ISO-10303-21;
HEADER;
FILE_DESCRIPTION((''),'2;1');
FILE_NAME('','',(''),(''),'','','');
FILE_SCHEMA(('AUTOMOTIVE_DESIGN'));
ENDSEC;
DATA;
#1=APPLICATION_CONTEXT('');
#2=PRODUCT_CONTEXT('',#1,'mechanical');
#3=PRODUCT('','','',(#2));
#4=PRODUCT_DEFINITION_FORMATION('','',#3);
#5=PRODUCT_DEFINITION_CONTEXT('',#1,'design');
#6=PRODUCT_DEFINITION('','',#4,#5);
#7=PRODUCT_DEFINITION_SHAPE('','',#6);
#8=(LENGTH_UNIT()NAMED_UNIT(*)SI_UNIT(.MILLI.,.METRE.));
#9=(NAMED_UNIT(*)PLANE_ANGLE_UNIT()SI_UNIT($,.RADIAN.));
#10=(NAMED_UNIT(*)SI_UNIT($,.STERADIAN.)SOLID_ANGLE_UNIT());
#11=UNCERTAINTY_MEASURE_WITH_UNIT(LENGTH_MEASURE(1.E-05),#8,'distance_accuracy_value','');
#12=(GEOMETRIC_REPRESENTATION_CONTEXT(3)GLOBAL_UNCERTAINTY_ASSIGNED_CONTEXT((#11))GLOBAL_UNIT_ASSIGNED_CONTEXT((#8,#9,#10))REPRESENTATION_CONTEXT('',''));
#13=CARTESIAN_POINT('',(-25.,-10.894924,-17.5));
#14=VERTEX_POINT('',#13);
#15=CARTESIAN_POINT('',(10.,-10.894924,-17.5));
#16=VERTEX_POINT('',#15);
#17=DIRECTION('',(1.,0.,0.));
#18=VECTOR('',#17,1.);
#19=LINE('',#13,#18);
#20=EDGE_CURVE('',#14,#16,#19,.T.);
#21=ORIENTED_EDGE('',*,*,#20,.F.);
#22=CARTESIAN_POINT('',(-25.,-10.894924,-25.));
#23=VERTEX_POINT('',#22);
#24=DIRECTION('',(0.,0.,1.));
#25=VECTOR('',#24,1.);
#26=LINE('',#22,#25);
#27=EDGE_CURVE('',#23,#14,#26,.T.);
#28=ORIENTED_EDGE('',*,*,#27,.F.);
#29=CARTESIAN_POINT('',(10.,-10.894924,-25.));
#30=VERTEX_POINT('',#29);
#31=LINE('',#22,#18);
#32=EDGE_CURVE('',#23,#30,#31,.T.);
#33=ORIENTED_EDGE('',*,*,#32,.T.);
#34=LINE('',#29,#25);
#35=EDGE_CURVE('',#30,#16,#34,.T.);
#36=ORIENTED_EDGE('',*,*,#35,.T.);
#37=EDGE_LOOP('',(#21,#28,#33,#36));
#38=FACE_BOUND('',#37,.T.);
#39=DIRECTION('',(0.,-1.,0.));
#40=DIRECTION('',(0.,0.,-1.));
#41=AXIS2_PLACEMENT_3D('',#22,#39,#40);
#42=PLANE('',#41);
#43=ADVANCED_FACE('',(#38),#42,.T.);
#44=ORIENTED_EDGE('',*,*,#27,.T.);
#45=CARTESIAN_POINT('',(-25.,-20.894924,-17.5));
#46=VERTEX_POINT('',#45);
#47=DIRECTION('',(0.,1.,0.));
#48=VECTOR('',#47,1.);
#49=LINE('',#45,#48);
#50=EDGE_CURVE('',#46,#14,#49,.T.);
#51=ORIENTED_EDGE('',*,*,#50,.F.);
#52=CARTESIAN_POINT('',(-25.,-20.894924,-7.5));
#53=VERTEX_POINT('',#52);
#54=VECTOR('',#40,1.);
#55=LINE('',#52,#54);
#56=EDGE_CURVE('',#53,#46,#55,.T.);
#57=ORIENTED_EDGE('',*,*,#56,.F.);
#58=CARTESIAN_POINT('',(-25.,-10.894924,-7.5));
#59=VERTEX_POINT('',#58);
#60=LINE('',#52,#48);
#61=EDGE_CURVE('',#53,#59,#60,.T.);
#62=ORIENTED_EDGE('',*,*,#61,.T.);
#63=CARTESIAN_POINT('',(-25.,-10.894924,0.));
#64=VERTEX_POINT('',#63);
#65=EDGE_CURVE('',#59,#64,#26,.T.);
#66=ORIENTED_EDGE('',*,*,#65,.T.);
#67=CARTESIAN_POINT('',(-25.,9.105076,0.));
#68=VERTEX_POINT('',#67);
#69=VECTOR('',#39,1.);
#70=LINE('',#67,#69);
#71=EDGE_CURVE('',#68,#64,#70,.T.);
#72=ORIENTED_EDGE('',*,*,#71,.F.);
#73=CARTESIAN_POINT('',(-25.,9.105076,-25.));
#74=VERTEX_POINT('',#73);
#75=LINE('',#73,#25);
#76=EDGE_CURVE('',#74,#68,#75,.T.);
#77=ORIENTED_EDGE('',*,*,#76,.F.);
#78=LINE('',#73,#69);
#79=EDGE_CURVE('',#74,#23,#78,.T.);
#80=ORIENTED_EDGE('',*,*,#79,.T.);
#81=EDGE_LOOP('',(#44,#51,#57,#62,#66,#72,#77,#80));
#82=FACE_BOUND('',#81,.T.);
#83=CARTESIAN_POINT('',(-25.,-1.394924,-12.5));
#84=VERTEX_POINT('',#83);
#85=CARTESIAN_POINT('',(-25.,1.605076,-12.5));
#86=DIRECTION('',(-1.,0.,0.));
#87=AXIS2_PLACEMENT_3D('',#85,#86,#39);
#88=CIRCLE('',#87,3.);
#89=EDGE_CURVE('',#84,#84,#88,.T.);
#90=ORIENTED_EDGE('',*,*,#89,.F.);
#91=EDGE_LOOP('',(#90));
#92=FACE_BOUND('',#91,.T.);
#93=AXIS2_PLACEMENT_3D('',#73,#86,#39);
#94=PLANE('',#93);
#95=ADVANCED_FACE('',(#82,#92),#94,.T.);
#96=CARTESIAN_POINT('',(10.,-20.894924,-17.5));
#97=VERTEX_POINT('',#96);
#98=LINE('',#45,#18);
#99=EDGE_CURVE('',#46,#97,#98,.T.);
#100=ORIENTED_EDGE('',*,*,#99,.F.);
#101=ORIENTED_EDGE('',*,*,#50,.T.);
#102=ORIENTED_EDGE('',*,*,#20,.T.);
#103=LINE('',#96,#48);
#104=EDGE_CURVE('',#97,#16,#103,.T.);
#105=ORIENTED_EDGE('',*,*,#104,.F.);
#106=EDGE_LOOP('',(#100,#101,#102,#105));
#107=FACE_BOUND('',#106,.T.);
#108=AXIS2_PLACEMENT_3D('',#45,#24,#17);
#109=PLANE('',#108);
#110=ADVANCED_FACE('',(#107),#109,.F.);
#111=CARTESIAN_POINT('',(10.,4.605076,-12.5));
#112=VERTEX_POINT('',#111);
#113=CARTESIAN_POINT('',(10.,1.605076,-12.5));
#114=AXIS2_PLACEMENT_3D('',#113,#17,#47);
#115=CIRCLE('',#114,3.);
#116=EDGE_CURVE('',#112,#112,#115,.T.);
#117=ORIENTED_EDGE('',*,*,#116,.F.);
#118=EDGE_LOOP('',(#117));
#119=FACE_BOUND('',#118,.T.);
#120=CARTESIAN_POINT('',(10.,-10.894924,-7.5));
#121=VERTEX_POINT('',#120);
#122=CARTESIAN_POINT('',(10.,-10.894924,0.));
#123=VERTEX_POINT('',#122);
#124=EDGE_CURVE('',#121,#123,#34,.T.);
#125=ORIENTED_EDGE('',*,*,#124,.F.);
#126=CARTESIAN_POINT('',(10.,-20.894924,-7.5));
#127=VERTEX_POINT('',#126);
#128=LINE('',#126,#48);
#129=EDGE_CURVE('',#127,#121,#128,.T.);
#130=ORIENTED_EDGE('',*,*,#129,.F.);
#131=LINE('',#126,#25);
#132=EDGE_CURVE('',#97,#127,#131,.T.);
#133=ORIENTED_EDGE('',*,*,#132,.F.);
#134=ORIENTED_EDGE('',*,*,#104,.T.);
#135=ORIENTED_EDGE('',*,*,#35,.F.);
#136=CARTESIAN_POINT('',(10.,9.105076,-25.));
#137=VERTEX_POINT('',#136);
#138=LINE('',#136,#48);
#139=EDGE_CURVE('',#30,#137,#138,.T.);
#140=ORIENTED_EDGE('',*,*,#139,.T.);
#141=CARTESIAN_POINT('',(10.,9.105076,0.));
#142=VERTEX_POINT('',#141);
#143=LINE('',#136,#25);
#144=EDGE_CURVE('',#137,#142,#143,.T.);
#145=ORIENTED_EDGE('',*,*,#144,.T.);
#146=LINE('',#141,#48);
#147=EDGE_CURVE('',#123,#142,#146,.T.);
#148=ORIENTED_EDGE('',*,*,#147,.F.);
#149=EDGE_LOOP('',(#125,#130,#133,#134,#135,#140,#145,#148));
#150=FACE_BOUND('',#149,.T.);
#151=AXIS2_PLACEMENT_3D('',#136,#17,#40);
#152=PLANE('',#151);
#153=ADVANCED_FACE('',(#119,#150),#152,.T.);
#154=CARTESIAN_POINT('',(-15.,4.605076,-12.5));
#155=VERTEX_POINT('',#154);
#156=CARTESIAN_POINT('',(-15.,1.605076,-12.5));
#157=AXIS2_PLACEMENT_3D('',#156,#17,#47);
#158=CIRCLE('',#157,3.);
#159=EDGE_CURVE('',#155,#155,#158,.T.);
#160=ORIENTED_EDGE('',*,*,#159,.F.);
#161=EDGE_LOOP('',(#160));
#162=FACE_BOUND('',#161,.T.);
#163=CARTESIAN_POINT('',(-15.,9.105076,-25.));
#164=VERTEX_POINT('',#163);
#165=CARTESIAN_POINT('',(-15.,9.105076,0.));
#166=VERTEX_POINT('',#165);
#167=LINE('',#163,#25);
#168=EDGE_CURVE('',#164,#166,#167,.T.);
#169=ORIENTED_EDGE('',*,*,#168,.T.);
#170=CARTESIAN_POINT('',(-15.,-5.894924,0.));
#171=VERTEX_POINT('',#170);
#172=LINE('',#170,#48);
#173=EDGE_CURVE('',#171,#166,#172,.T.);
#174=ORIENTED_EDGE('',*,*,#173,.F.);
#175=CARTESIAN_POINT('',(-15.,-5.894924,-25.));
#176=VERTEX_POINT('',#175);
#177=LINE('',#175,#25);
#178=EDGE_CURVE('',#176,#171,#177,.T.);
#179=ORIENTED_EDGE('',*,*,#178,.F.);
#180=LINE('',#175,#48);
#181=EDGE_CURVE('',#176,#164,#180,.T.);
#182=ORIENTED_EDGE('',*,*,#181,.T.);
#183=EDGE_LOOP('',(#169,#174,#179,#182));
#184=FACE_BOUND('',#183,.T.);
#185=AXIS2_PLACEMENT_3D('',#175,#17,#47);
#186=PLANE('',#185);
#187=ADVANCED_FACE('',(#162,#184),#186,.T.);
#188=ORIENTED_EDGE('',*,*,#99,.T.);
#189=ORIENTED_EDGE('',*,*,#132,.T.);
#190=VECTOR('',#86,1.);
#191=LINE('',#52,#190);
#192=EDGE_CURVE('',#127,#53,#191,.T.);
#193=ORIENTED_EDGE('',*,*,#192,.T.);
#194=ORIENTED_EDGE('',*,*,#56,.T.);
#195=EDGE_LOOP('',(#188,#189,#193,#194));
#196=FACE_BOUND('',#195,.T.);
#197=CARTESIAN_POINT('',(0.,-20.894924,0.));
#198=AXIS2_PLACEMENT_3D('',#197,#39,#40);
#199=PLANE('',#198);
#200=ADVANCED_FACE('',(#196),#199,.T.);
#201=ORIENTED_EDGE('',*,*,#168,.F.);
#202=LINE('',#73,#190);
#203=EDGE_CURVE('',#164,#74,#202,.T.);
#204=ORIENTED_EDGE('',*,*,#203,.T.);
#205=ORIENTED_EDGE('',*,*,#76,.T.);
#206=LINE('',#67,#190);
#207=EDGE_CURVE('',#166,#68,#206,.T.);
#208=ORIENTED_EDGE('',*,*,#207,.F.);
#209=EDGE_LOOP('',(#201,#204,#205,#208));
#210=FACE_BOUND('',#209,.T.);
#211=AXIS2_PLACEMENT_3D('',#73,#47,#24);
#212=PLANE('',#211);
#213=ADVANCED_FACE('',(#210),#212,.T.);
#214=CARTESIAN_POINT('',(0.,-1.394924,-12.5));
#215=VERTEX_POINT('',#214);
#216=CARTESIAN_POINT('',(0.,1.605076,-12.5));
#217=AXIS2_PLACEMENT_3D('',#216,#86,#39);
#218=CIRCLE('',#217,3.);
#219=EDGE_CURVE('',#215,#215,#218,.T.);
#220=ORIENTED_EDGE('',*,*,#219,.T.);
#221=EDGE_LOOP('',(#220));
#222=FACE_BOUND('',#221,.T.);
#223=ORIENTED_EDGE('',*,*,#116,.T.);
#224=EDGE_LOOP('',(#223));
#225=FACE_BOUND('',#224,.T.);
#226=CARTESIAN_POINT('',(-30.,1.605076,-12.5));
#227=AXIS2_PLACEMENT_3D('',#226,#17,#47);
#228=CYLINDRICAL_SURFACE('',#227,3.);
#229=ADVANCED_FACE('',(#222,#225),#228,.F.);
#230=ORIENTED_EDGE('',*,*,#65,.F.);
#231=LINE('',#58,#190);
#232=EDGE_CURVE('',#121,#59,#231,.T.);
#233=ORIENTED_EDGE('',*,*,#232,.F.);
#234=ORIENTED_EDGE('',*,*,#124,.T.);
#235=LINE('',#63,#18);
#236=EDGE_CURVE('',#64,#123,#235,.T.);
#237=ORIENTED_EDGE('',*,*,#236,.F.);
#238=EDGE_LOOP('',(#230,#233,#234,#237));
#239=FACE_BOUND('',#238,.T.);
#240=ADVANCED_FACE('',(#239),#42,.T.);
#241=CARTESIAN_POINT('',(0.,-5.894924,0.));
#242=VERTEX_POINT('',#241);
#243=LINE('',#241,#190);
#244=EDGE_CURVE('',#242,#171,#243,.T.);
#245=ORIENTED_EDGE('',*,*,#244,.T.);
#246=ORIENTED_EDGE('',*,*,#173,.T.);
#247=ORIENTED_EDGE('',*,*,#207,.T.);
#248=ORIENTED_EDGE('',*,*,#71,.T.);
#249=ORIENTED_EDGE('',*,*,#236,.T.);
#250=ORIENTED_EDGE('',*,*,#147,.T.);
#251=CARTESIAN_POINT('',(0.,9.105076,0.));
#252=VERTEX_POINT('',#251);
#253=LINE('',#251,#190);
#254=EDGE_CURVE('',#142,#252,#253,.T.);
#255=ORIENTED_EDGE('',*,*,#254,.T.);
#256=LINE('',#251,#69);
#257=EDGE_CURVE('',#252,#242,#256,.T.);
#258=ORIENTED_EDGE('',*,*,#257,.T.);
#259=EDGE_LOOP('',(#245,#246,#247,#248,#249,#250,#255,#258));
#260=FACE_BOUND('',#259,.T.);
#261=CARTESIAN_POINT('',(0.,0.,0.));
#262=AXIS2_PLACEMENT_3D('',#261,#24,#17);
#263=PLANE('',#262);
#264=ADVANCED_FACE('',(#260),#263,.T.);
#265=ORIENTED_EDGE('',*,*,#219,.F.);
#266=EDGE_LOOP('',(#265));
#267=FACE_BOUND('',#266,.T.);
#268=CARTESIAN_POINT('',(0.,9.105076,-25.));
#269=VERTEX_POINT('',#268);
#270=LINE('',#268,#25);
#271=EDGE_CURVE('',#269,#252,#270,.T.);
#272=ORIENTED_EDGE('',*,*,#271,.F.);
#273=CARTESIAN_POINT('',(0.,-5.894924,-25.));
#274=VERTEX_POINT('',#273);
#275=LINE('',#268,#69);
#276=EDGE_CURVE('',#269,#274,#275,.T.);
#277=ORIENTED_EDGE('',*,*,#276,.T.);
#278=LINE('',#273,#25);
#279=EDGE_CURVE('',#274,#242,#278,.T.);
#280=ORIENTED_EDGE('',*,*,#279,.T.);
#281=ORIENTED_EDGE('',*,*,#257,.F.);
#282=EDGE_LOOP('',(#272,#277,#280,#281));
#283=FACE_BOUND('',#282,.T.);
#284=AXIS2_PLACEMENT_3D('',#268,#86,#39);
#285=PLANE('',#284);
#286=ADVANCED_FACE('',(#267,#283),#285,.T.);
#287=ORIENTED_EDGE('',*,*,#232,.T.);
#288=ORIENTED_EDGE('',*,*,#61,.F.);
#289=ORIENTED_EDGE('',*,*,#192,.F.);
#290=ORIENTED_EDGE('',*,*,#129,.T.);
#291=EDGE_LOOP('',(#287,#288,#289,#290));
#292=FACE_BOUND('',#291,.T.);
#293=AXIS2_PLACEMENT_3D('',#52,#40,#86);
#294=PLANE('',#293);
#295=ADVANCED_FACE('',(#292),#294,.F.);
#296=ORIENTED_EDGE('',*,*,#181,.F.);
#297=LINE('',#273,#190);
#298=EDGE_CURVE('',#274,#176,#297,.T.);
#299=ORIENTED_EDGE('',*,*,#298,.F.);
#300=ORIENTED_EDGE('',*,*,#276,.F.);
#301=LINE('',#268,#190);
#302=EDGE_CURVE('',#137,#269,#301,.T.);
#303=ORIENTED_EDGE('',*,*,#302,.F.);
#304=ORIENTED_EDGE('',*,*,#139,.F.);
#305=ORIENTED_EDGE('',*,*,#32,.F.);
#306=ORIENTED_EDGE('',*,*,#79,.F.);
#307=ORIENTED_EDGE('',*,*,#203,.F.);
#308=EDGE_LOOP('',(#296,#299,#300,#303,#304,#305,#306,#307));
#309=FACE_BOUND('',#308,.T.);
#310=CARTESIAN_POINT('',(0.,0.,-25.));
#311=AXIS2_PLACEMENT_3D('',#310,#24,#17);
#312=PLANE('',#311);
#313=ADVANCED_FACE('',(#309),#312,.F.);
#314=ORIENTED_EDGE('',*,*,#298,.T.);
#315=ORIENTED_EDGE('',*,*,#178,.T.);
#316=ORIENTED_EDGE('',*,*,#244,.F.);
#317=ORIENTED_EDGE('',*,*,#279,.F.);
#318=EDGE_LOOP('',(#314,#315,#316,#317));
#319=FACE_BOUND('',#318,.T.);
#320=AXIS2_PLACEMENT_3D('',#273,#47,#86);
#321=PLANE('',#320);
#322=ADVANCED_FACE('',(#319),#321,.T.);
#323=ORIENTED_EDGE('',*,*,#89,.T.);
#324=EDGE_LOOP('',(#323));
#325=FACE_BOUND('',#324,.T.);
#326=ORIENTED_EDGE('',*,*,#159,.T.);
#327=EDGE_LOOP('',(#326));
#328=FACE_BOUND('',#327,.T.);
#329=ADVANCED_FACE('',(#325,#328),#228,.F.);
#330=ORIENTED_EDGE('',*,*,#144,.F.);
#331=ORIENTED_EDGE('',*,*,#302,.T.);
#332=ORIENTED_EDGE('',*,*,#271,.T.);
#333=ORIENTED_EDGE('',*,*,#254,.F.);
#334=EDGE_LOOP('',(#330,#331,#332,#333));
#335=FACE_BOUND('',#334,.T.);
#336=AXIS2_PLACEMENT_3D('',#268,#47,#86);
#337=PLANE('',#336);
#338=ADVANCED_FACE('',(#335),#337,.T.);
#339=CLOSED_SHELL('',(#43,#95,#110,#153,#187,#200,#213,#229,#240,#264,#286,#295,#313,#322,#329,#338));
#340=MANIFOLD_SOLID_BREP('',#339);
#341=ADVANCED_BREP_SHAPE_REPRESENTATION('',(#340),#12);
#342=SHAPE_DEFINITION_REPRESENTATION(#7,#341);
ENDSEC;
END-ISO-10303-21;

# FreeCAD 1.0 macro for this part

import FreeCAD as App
import Part
import Sketcher

V = App.Vector
Q = App.Units.Quantity


def add_polygon(sketch, points):
    """Adds a closed chain of lines whose ends are joined by coincident constraints."""
    first, n = sketch.GeometryCount, len(points)
    for a, b in zip(points, points[1:] + points[:1]):
        sketch.addGeometry(Part.LineSegment(App.Vector(*a, 0), App.Vector(*b, 0)), False)
    for i in range(n):
        sketch.addConstraint(Sketcher.Constraint("Coincident", first + i, 2, first + (i + 1) % n, 1))

doc = App.newDocument("Part")
body = doc.addObject("PartDesign::Body", "Body")

# Sketch on XY plane
sketch1 = body.newObject("Sketcher::SketchObject", "Sketch")
sketch1.AttachmentSupport = (doc.getObject("XY_Plane"), [""])
sketch1.MapMode = "FlatFace"
add_polygon(sketch1, [(0, 9), (0, -6), (-15, -6), (-15, 9), (-25, 9), (-25, -11), (10, -11), (10, 9)])  # lines 0-7
sketch1.addConstraint(Sketcher.Constraint("Vertical", 0))
sketch1.addConstraint(Sketcher.Constraint("Horizontal", 1))
sketch1.addConstraint(Sketcher.Constraint("Vertical", 2))
sketch1.addConstraint(Sketcher.Constraint("Horizontal", 3))
sketch1.addConstraint(Sketcher.Constraint("Vertical", 4))
sketch1.addConstraint(Sketcher.Constraint("Horizontal", 5))
sketch1.addConstraint(Sketcher.Constraint("Vertical", 6))
sketch1.addConstraint(Sketcher.Constraint("Horizontal", 7))
sketch1.addConstraint(Sketcher.Constraint("PointOnObject", 0, 2, -2))
sketch1.addConstraint(Sketcher.Constraint("Horizontal", 3, 2, 6, 2))
sketch1.addConstraint(Sketcher.Constraint("Equal", 3, 7))
sketch1.addConstraint(Sketcher.Constraint("Equal", 1, 0))
sketch1.addConstraint(Sketcher.Constraint("DistanceX", 1, 2, 1, 1, Q("15 mm")))
sketch1.addConstraint(Sketcher.Constraint("DistanceX", 3, 2, 3, 1, Q("10 mm")))
sketch1.addConstraint(Sketcher.Constraint("DistanceY", 4, 2, 4, 1, Q("20 mm")))
sketch1.addConstraint(Sketcher.Constraint("DistanceY", 0, 2, -1, 1, Q("5.894924 mm")))
pad1 = body.newObject("PartDesign::Pad", "Pad")
pad1.Profile = sketch1
pad1.Length = 25
pad1.Reversed = True

# Sketch on YZ plane
sketch2 = body.newObject("Sketcher::SketchObject", "Sketch001")
sketch2.AttachmentSupport = (doc.getObject("YZ_Plane"), [""])
sketch2.MapMode = "FlatFace"
sketch2.AttachmentOffset = App.Placement(V(0, 0, 10), App.Rotation())
sketch2.addGeometry(Part.Circle(V(1.6, -12.5, 0), V(0, 0, 1), 3), False)
sketch2.addConstraint(Sketcher.Constraint("Diameter", 0, Q("6 mm")))
sketch2.addConstraint(Sketcher.Constraint("DistanceY", 0, 3, -1, 1, Q("12.5 mm")))
sketch2.addConstraint(Sketcher.Constraint("DistanceX", -1, 1, 0, 3, Q("1.605076 mm")))
pocket1 = body.newObject("PartDesign::Pocket", "Pocket")
pocket1.Profile = sketch2
pocket1.Length = 40

# Sketch on XZ plane
sketch3 = body.newObject("Sketcher::SketchObject", "Sketch002")
sketch3.AttachmentSupport = (doc.getObject("XZ_Plane"), [""])
sketch3.MapMode = "FlatFace"
sketch3.AttachmentOffset = App.Placement(V(0, 0, 10.894924), App.Rotation())
add_polygon(sketch3, [(-25, -8), (-25, -18), (10, -18), (10, -8)])  # lines 0-3
sketch3.addConstraint(Sketcher.Constraint("Vertical", 0))
sketch3.addConstraint(Sketcher.Constraint("Horizontal", 1))
sketch3.addConstraint(Sketcher.Constraint("Vertical", 2))
sketch3.addConstraint(Sketcher.Constraint("Horizontal", 3))
sketch3.addConstraint(Sketcher.Constraint("DistanceX", 1, 1, 1, 2, Q("35 mm")))
sketch3.addConstraint(Sketcher.Constraint("DistanceY", 0, 2, 0, 1, Q("10 mm")))
sketch3.addConstraint(Sketcher.Constraint("DistanceX", 0, 2, -1, 1, Q("25 mm")))
sketch3.addConstraint(Sketcher.Constraint("DistanceY", 0, 2, -1, 1, Q("17.5 mm")))
pad2 = body.newObject("PartDesign::Pad", "Pad001")
pad2.Profile = sketch3
pad2.Length = 10

doc.recompute()
